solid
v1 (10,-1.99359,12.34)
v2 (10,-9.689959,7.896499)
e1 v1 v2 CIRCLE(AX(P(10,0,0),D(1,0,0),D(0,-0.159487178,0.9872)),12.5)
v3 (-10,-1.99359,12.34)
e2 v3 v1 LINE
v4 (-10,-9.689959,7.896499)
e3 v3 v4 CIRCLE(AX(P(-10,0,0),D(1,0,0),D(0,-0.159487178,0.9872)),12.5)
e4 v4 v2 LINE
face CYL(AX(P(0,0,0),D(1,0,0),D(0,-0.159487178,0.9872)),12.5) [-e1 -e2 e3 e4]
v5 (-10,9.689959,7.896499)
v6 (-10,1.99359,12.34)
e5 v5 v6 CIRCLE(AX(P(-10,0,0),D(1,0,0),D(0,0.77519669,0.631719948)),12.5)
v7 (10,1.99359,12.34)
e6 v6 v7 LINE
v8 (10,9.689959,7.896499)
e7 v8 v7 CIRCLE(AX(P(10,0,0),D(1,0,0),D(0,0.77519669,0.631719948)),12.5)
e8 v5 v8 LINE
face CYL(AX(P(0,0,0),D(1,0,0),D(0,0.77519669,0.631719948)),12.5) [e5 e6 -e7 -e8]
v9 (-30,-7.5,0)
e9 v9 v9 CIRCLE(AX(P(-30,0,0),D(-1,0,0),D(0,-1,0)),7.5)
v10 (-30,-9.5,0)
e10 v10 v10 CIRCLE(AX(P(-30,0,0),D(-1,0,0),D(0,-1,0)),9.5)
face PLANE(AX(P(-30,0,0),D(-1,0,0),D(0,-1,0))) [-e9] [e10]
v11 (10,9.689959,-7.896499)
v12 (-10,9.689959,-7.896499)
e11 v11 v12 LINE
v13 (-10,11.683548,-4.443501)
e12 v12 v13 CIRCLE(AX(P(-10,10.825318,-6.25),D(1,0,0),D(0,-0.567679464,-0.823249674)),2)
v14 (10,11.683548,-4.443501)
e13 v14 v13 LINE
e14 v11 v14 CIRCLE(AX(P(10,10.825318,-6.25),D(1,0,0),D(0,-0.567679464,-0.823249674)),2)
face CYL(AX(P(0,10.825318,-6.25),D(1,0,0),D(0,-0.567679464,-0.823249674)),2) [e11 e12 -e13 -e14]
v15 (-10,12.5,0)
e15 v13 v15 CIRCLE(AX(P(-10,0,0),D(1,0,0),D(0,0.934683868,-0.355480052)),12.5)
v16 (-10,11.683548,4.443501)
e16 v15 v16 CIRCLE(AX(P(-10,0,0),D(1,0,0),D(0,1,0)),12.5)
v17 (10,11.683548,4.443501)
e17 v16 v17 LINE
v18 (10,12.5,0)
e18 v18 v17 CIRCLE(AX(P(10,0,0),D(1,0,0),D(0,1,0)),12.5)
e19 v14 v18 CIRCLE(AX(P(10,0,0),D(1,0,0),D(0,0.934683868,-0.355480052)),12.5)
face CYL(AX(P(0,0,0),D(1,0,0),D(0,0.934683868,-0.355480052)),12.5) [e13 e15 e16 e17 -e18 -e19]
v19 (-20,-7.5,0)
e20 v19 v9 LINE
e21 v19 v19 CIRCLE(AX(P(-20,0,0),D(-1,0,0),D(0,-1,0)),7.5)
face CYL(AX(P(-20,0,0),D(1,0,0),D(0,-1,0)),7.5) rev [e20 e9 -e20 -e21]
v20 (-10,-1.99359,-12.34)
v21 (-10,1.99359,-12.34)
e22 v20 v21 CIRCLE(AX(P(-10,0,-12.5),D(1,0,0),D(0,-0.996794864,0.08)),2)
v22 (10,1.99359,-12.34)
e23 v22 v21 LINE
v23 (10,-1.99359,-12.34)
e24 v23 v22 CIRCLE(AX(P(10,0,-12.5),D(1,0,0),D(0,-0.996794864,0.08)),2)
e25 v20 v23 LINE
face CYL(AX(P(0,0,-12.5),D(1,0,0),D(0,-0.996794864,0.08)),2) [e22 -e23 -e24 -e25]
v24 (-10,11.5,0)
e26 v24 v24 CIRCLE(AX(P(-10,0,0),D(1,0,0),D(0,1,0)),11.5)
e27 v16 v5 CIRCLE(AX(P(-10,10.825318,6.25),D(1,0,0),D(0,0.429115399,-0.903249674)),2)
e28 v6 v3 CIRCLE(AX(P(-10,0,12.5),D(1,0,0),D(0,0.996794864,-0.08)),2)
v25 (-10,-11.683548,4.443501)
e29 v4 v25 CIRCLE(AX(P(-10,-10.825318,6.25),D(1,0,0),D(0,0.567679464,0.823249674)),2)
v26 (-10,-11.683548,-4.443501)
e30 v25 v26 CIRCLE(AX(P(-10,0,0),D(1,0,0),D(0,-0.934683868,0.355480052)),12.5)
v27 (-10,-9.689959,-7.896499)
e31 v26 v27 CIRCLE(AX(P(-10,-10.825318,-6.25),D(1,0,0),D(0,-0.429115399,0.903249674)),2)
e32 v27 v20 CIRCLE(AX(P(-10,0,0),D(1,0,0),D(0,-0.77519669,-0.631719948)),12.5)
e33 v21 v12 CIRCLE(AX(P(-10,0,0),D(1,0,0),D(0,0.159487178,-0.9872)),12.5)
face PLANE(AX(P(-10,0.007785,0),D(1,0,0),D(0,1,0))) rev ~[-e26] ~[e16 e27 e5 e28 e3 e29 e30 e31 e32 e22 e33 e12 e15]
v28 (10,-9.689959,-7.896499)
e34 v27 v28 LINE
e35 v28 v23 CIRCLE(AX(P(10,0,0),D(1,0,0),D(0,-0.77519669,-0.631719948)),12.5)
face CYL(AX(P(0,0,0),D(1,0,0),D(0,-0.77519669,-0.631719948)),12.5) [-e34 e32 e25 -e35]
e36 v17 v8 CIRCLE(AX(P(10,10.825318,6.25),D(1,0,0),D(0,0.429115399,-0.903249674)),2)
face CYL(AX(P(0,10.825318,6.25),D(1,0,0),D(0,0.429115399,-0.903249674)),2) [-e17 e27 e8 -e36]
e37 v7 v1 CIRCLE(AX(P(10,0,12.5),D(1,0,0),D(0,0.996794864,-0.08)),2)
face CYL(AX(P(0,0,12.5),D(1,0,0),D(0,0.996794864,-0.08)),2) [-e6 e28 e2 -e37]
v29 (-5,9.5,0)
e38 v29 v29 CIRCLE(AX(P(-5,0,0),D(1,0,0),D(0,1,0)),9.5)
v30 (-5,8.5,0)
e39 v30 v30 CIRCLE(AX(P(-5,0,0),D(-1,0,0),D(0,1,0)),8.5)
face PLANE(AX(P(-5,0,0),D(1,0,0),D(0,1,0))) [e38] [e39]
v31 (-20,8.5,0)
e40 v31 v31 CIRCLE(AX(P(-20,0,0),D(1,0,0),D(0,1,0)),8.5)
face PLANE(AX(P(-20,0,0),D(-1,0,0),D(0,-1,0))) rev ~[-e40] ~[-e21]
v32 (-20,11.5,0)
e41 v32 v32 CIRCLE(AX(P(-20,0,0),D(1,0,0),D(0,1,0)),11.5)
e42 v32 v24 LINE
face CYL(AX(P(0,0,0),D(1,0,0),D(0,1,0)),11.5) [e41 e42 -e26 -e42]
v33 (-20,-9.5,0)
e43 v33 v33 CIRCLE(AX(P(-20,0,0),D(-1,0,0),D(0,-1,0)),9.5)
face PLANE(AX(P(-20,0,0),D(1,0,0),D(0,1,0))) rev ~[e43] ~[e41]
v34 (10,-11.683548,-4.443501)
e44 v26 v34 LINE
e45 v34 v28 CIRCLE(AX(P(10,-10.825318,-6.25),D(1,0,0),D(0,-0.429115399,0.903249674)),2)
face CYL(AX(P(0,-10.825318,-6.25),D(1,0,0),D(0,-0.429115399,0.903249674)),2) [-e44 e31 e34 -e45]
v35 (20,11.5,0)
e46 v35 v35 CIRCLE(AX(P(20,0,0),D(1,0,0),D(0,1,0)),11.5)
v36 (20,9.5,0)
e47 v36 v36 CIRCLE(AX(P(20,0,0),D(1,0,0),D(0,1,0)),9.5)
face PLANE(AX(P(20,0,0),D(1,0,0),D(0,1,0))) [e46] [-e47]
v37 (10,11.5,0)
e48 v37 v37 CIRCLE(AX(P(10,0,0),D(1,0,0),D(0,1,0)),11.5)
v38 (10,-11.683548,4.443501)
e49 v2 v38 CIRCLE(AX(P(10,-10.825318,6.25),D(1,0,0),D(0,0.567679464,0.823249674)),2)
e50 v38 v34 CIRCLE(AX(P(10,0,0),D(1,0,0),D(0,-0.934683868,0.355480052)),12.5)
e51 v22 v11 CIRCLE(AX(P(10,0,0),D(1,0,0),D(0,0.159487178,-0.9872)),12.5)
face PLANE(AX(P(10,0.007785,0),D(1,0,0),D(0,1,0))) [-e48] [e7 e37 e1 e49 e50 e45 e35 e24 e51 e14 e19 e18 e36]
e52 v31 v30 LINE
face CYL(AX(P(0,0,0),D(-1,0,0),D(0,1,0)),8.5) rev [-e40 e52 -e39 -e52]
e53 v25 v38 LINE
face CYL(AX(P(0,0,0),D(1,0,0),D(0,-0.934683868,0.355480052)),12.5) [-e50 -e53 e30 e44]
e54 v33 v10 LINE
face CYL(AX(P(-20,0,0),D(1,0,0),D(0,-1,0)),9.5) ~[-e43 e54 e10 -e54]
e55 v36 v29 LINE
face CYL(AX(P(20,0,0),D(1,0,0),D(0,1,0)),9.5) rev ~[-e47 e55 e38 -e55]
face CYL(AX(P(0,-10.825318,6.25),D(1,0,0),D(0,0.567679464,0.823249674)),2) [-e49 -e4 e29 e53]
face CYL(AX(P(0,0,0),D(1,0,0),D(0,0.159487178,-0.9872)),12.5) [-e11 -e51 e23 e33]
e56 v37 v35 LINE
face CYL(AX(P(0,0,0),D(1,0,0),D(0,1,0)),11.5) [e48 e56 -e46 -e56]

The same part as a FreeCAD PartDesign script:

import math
import FreeCAD as App
import Part
import Sketcher
Q = App.Units.Quantity

doc = App.newDocument("Part")
body = doc.addObject("PartDesign::Body", "Body")

# Sketch on YZ plane
sketch1 = body.newObject("Sketcher::SketchObject", "Sketch")
sketch1.AttachmentSupport = (doc.getObject("YZ_Plane"), [""])
sketch1.MapMode = "FlatFace"
sketch1.addGeometry(Part.ArcOfCircle(Part.Circle(App.Vector(0, 0, 0), App.Vector(0, 0, 1), 12.5), math.radians(-20.822869), math.radians(0)), False)
sketch1.addGeometry(Part.ArcOfCircle(Part.Circle(App.Vector(0, 0, 0), App.Vector(0, 0, 1), 12.5), math.radians(0), math.radians(20.822869)), False)
sketch1.addGeometry(Part.ArcOfCircle(Part.Circle(App.Vector(10.825318, 6.25, 0), App.Vector(0, 0, 1), 2), math.radians(-64.588566), math.radians(124.588566)), False)
sketch1.addGeometry(Part.ArcOfCircle(Part.Circle(App.Vector(0, 0, 0), App.Vector(0, 0, 1), 12.5), math.radians(39.177131), math.radians(80.822869)), False)
sketch1.addGeometry(Part.ArcOfCircle(Part.Circle(App.Vector(0, 12.5, 0), App.Vector(0, 0, 1), 2), math.radians(-4.588566), math.radians(184.588566)), False)
sketch1.addGeometry(Part.ArcOfCircle(Part.Circle(App.Vector(0, 0, 0), App.Vector(0, 0, 1), 12.5), math.radians(99.177131), math.radians(140.822869)), False)
sketch1.addGeometry(Part.ArcOfCircle(Part.Circle(App.Vector(-10.825318, 6.25, 0), App.Vector(0, 0, 1), 2), math.radians(55.411434), math.radians(244.588566)), False)
sketch1.addGeometry(Part.ArcOfCircle(Part.Circle(App.Vector(0, 0, 0), App.Vector(0, 0, 1), 12.5), math.radians(159.177131), math.radians(200.822869)), False)
sketch1.addGeometry(Part.ArcOfCircle(Part.Circle(App.Vector(-10.825318, -6.25, 0), App.Vector(0, 0, 1), 2), math.radians(115.411434), math.radians(304.588566)), False)
sketch1.addGeometry(Part.ArcOfCircle(Part.Circle(App.Vector(0, 0, 0), App.Vector(0, 0, 1), 12.5), math.radians(-140.822869), math.radians(-99.177131)), False)
sketch1.addGeometry(Part.ArcOfCircle(Part.Circle(App.Vector(0, -12.5, 0), App.Vector(0, 0, 1), 2), math.radians(175.411434), math.radians(364.588566)), False)
sketch1.addGeometry(Part.ArcOfCircle(Part.Circle(App.Vector(0, 0, 0), App.Vector(0, 0, 1), 12.5), math.radians(-80.822869), math.radians(-39.177131)), False)
sketch1.addGeometry(Part.ArcOfCircle(Part.Circle(App.Vector(10.825318, -6.25, 0), App.Vector(0, 0, 1), 2), math.radians(-124.588566), math.radians(64.588566)), False)
sketch1.addGeometry(Part.Circle(App.Vector(0, 0, 0), App.Vector(0, 0, 1), 8.5), False)
sketch1.addConstraint(Sketcher.Constraint("Tangent", 0, 2, 1, 1))
sketch1.addConstraint(Sketcher.Constraint("Coincident", 1, 2, 2, 1))
sketch1.addConstraint(Sketcher.Constraint("Coincident", 2, 2, 3, 1))
sketch1.addConstraint(Sketcher.Constraint("Coincident", 3, 2, 4, 1))
sketch1.addConstraint(Sketcher.Constraint("Coincident", 4, 2, 5, 1))
sketch1.addConstraint(Sketcher.Constraint("Coincident", 5, 2, 6, 1))
sketch1.addConstraint(Sketcher.Constraint("Coincident", 6, 2, 7, 1))
sketch1.addConstraint(Sketcher.Constraint("Coincident", 7, 2, 8, 1))
sketch1.addConstraint(Sketcher.Constraint("Coincident", 8, 2, 9, 1))
sketch1.addConstraint(Sketcher.Constraint("Coincident", 9, 2, 10, 1))
sketch1.addConstraint(Sketcher.Constraint("Coincident", 10, 2, 11, 1))
sketch1.addConstraint(Sketcher.Constraint("Coincident", 11, 2, 12, 1))
sketch1.addConstraint(Sketcher.Constraint("Coincident", 12, 2, 0, 1))
sketch1.addConstraint(Sketcher.Constraint("Coincident", 0, 3, -1, 1))
sketch1.addConstraint(Sketcher.Constraint("Coincident", 3, 3, -1, 1))
sketch1.addConstraint(Sketcher.Constraint("Coincident", 5, 3, -1, 1))
sketch1.addConstraint(Sketcher.Constraint("Coincident", 7, 3, -1, 1))
sketch1.addConstraint(Sketcher.Constraint("Coincident", 9, 3, -1, 1))
sketch1.addConstraint(Sketcher.Constraint("Coincident", 11, 3, -1, 1))
sketch1.addConstraint(Sketcher.Constraint("Coincident", 13, 3, -1, 1))
sketch1.addConstraint(Sketcher.Constraint("Equal", 0, 1))
sketch1.addConstraint(Sketcher.Constraint("Equal", 1, 3))
sketch1.addConstraint(Sketcher.Constraint("Equal", 2, 4))
sketch1.addConstraint(Sketcher.Constraint("Equal", 3, 5))
sketch1.addConstraint(Sketcher.Constraint("Equal", 4, 6))
sketch1.addConstraint(Sketcher.Constraint("Equal", 5, 7))
sketch1.addConstraint(Sketcher.Constraint("Equal", 6, 8))
sketch1.addConstraint(Sketcher.Constraint("Equal", 7, 9))
sketch1.addConstraint(Sketcher.Constraint("Equal", 8, 10))
sketch1.addConstraint(Sketcher.Constraint("Equal", 9, 11))
sketch1.addConstraint(Sketcher.Constraint("Equal", 10, 12))
sketch1.addConstraint(Sketcher.Constraint("Symmetric", 2, 3, 8, 3, -1, 1))
sketch1.addConstraint(Sketcher.Constraint("Symmetric", 4, 3, 10, 3, -1, 1))
sketch1.addConstraint(Sketcher.Constraint("Symmetric", 6, 3, 12, 3, -1, 1))
sketch1.addConstraint(Sketcher.Constraint("Symmetric", 2, 3, 6, 3, -2))
sketch1.addConstraint(Sketcher.Constraint("PointOnObject", 4, 3, -2))
sketch1.addConstraint(Sketcher.Constraint("PointOnObject", 0, 2, -1))
sketch1.addConstraint(Sketcher.Constraint("Diameter", 13, Q("17 mm")))
sketch1.addConstraint(Sketcher.Constraint("Radius", 2, Q("2 mm")))
sketch1.addConstraint(Sketcher.Constraint("Radius", 0, Q("12.5 mm")))
sketch1.addConstraint(Sketcher.Constraint("DistanceY", -1, 1, 4, 3, Q("12.5 mm")))
sketch1.addConstraint(Sketcher.Constraint("DistanceY", 8, 3, 6, 3, Q("12.5 mm")))
sketch1.addConstraint(Sketcher.Constraint("DistanceY", 7, 2, 6, 2, Q("8.887001 mm")))
pad1 = body.newObject("PartDesign::Pad", "Pad")
pad1.Profile = sketch1
pad1.Length = 20
pad1.Midplane = True

# Sketch on YZ plane
sketch2 = body.newObject("Sketcher::SketchObject", "Sketch001")
sketch2.AttachmentSupport = (doc.getObject("YZ_Plane"), [""])
sketch2.MapMode = "FlatFace"
sketch2.addGeometry(Part.Circle(App.Vector(0, 0, 0), App.Vector(0, 0, 1), 11.5), False)
sketch2.addGeometry(Part.Circle(App.Vector(0, 0, 0), App.Vector(0, 0, 1), 8.5), False)
sketch2.addConstraint(Sketcher.Constraint("Coincident", 0, 3, -1, 1))
sketch2.addConstraint(Sketcher.Constraint("Coincident", 1, 3, -1, 1))
sketch2.addConstraint(Sketcher.Constraint("Diameter", 0, Q("23 mm")))
sketch2.addConstraint(Sketcher.Constraint("Diameter", 1, Q("17 mm")))
pad2 = body.newObject("PartDesign::Pad", "Pad001")
pad2.Profile = sketch2
pad2.Length = 40
pad2.Midplane = True

# Sketch on YZ plane
sketch3 = body.newObject("Sketcher::SketchObject", "Sketch002")
sketch3.AttachmentSupport = (doc.getObject("YZ_Plane"), [""])
sketch3.MapMode = "FlatFace"
sketch3.AttachmentOffset = App.Placement(App.Vector(0, 0, -20), App.Rotation())
sketch3.addGeometry(Part.Circle(App.Vector(0, 0, 0), App.Vector(0, 0, 1), 9.5), False)
sketch3.addGeometry(Part.Circle(App.Vector(0, 0, 0), App.Vector(0, 0, 1), 7.5), False)
sketch3.addConstraint(Sketcher.Constraint("Coincident", 0, 3, -1, 1))
sketch3.addConstraint(Sketcher.Constraint("Coincident", 1, 3, -1, 1))
sketch3.addConstraint(Sketcher.Constraint("Diameter", 0, Q("19 mm")))
sketch3.addConstraint(Sketcher.Constraint("Diameter", 1, Q("15 mm")))
pad3 = body.newObject("PartDesign::Pad", "Pad002")
pad3.Profile = sketch3
pad3.Length = 10
pad3.Reversed = True

# Sketch on YZ plane
sketch4 = body.newObject("Sketcher::SketchObject", "Sketch003")
sketch4.AttachmentSupport = (doc.getObject("YZ_Plane"), [""])
sketch4.MapMode = "FlatFace"
sketch4.AttachmentOffset = App.Placement(App.Vector(0, 0, 20), App.Rotation())
sketch4.addGeometry(Part.Circle(App.Vector(0, 0, 0), App.Vector(0, 0, 1), 9.5), False)
sketch4.addConstraint(Sketcher.Constraint("Coincident", 0, 3, -1, 1))
sketch4.addConstraint(Sketcher.Constraint("Diameter", 0, Q("19 mm")))
pocket1 = body.newObject("PartDesign::Pocket", "Pocket")
pocket1.Profile = sketch4
pocket1.Length = 25

doc.recompute()
